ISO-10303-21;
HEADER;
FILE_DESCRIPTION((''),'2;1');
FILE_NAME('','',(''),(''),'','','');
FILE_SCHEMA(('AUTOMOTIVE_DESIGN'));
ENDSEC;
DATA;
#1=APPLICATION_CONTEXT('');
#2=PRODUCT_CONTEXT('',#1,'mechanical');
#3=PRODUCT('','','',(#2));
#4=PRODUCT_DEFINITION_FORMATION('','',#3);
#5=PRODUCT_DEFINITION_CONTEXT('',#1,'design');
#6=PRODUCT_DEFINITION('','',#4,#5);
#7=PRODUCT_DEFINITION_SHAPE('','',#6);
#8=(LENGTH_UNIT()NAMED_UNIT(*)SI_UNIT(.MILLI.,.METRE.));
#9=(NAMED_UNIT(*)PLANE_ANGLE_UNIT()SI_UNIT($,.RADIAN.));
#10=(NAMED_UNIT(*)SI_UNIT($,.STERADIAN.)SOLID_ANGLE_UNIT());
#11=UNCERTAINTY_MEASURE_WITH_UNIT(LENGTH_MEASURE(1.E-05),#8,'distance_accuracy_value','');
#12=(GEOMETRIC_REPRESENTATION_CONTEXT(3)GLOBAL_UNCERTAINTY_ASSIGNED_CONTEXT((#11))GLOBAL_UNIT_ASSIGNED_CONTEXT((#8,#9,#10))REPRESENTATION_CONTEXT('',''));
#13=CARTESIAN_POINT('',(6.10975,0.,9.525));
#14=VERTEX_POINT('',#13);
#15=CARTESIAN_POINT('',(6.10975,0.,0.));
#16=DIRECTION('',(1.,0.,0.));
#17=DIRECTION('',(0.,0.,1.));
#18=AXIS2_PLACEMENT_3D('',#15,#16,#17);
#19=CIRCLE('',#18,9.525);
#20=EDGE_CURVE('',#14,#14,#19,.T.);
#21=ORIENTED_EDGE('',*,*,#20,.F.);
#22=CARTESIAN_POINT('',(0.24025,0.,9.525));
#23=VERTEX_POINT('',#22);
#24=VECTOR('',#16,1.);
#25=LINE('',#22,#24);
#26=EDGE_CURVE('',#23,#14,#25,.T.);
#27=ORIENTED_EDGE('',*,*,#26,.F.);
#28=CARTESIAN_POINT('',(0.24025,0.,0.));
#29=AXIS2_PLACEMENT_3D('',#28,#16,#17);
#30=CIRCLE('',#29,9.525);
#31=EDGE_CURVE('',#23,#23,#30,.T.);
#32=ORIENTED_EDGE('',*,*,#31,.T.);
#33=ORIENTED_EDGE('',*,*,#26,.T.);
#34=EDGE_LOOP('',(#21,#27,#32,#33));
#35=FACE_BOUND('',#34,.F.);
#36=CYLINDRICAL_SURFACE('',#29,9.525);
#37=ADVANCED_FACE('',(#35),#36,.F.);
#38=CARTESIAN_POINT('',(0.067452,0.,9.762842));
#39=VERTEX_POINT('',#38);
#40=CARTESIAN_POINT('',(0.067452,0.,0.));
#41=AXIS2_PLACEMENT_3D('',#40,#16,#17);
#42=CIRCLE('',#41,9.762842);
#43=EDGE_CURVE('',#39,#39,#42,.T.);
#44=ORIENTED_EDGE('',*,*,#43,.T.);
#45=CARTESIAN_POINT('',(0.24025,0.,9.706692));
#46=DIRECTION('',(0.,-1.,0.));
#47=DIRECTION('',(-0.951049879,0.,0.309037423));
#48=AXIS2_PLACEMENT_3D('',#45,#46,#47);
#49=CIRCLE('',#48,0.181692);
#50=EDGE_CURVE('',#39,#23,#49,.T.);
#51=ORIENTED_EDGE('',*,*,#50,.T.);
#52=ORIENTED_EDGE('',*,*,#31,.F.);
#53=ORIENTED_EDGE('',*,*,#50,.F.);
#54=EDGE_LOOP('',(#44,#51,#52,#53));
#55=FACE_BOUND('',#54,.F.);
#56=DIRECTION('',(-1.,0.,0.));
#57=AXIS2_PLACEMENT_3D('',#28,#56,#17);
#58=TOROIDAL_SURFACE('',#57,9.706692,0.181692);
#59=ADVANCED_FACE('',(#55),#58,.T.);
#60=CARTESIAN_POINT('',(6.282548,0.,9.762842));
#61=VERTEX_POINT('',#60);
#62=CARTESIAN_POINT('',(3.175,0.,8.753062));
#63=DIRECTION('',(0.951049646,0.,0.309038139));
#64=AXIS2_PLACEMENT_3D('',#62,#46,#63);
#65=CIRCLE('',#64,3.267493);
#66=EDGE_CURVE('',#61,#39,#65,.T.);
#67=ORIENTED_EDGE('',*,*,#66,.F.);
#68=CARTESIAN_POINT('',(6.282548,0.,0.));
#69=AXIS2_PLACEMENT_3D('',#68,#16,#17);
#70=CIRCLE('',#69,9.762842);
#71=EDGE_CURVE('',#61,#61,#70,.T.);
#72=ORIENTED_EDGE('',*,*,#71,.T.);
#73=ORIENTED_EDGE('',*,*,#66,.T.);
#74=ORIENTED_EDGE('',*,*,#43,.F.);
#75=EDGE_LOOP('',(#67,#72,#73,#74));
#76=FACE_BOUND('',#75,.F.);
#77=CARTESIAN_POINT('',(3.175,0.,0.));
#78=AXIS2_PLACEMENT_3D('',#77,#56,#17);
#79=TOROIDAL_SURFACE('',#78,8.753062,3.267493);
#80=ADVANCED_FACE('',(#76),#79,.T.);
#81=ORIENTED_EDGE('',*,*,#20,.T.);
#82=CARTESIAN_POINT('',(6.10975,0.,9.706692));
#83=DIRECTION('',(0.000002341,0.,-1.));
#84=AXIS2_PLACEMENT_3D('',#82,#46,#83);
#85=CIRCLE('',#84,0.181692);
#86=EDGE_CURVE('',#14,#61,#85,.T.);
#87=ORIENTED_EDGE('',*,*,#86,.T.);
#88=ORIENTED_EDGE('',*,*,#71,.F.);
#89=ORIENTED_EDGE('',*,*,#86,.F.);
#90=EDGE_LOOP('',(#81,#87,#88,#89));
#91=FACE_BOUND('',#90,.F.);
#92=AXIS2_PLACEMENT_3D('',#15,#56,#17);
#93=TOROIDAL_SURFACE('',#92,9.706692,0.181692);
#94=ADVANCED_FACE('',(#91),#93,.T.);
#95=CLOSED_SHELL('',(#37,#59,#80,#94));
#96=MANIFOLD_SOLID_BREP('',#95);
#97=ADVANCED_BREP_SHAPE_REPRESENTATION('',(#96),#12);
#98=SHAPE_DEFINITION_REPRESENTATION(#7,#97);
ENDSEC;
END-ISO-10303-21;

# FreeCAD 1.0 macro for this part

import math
import FreeCAD as App
import Part
import Sketcher

doc = App.newDocument("Part")
params = doc.addObject("Spreadsheet::Sheet", "Params")
for row, (alias, value) in enumerate([
    ("revolution_angle", "360 deg"),
], start=1):
    params.set(f"A{row}", alias)
    params.set(f"B{row}", "=" + value)
    params.setAlias(f"B{row}", alias)

body = doc.addObject("PartDesign::Body", "Body")

# Sketch on XZ plane
sketch1 = doc.addObject("Sketcher::SketchObject", "Sketch")
body.addObject(sketch1)
sketch1.AttachmentSupport = (doc.XZ_Plane, [""])
sketch1.MapMode = "FlatFace"
sketch1.addGeometry([
    Part.ArcOfCircle(Part.Circle(App.Vector(0.24, 9.71, 0), App.Vector(0, 0, 1), 0.18), math.radians(162), math.radians(270)),
    Part.LineSegment(App.Vector(0.24, 9.53, 0), App.Vector(6.11, 9.53, 0)),
    Part.ArcOfCircle(Part.Circle(App.Vector(6.11, 9.71, 0), App.Vector(0, 0, 1), 0.18), math.radians(-90), math.radians(18)),
    Part.ArcOfCircle(Part.Circle(App.Vector(3.17, 8.75, 0), App.Vector(0, 0, 1), 3.27), math.radians(18), math.radians(162)),
], False)
sketch1.addConstraint([
    Sketcher.Constraint("Coincident", 0, 2, 1, 1),
    Sketcher.Constraint("Coincident", 1, 2, 2, 1),
    Sketcher.Constraint("Tangent", 2, 2, 3, 1),
    Sketcher.Constraint("Tangent", 3, 2, 0, 1),
    Sketcher.Constraint("Horizontal", 1),
    Sketcher.Constraint("Equal", 0, 2),
    Sketcher.Constraint("Vertical", 2, 3, 1, 2),
    Sketcher.Constraint("DistanceX", 1, 1, 1, 2, 5.8695),
    Sketcher.Constraint("DistanceX", -1, 1, 3, 3, 3.175),
    Sketcher.Constraint("DistanceY", -1, 1, 0, 2, 9.525),
    Sketcher.Constraint("Radius", 0, 0.181692),
    Sketcher.Constraint("Radius", 3, 3.267493),
    Sketcher.Constraint("DistanceX", 0, 3, 2, 3, 5.869499),
])
revolution = doc.addObject("PartDesign::Revolution", "Revolution")
body.addObject(revolution)
revolution.Profile = sketch1
revolution.ReferenceAxis = (sketch1, ["H_Axis"])
revolution.setExpression("Angle", "Params.revolution_angle")

doc.recompute()
